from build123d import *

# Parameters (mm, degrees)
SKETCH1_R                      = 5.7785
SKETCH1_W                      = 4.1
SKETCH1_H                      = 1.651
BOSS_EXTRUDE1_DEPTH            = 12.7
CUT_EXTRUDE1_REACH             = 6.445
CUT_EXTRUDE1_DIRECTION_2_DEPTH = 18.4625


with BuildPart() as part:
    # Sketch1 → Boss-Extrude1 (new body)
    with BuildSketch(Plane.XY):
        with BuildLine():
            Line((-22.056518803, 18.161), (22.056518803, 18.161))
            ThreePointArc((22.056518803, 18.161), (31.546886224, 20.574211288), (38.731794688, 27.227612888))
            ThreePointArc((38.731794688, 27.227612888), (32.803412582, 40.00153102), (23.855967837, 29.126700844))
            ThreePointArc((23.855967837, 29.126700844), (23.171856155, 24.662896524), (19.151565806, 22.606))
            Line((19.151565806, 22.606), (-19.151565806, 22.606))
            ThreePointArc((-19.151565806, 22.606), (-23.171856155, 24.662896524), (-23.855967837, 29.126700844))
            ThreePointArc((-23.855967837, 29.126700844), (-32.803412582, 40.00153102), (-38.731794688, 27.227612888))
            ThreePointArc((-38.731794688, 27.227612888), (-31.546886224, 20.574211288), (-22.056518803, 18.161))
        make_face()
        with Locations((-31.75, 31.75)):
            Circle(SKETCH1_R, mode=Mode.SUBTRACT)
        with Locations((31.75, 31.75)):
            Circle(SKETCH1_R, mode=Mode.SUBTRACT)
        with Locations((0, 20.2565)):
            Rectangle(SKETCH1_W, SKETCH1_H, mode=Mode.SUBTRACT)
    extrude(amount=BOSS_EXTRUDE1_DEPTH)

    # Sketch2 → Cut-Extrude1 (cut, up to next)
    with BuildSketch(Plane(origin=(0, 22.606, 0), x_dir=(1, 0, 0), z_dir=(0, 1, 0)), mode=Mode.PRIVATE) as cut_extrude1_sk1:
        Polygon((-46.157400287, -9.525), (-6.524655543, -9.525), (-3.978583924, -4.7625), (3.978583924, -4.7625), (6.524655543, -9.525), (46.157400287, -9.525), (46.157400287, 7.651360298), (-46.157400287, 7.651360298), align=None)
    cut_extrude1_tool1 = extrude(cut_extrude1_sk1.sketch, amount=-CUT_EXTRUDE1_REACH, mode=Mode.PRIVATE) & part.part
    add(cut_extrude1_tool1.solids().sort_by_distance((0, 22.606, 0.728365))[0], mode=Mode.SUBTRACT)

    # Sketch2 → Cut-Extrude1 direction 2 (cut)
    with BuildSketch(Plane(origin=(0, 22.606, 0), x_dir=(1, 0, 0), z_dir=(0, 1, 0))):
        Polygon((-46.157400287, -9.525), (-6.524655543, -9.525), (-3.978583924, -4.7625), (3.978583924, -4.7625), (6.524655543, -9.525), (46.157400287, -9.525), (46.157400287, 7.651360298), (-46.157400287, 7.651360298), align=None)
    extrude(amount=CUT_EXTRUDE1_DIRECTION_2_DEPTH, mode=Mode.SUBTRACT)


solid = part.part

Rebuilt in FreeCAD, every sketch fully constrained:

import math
import FreeCAD as App
import Part
import Sketcher

V = App.Vector
Q = App.Units.Quantity

doc = App.newDocument("Part")
params = doc.addObject("Spreadsheet::Sheet", "Params")
for row, (alias, value) in enumerate([
    ("sketch1_diameter", "0.455 in"),
    ("sketch1_height", "0.065 in"),
    ("pad1_length", "0.5 in"),
    ("pocket1_length", "0.175 in"),
    ("pocket2_length", "18.4625 mm"),
], start=1):
    params.set(f"A{row}", alias)
    params.set(f"B{row}", "=" + value)
    params.setAlias(f"B{row}", alias)

body = doc.addObject("PartDesign::Body", "Body")

sketch1 = body.newObject("Sketcher::SketchObject", "Sketch")
sketch1.AttachmentSupport = (doc.getObject("XY_Plane"), [""])
sketch1.MapMode = "FlatFace"
sketch1.addGeometry([
    Part.LineSegment(V(-22.056519, 18.161, 0), V(22.056519, 18.161, 0)),
    Part.ArcOfCircle(Part.Circle(V(22.056519, 38.028855, 0), V(0, 0, 1), 19.867855), math.radians(-90), math.radians(-32.932741)),
    Part.ArcOfCircle(Part.Circle(V(31.75, 31.75, 0), V(0, 0, 1), 8.3185), math.radians(-32.932741), math.radians(198.382381)),
    Part.ArcOfCircle(Part.Circle(V(19.151566, 27.563361, 0), V(0, 0, 1), 4.957361), math.radians(-90), math.radians(18.382381)),
    Part.LineSegment(V(19.151566, 22.606, 0), V(-19.151566, 22.606, 0)),
    Part.ArcOfCircle(Part.Circle(V(-19.151566, 27.563361, 0), V(0, 0, 1), 4.957361), math.radians(161.617619), math.radians(270)),
    Part.ArcOfCircle(Part.Circle(V(-31.75, 31.75, 0), V(0, 0, 1), 8.3185), math.radians(-18.382381), math.radians(212.932741)),
    Part.ArcOfCircle(Part.Circle(V(-22.056519, 38.028855, 0), V(0, 0, 1), 19.867855), math.radians(-147.067259), math.radians(-90)),
    Part.LineSegment(V(2.05, 19.431, 0), V(-2.05, 19.431, 0)),
    Part.LineSegment(V(-2.05, 19.431, 0), V(-2.05, 21.082, 0)),
    Part.LineSegment(V(-2.05, 21.082, 0), V(2.05, 21.082, 0)),
    Part.LineSegment(V(2.05, 21.082, 0), V(2.05, 19.431, 0)),
    Part.Circle(V(-31.75, 31.75, 0), V(0, 0, 1), 5.7785),
    Part.Circle(V(31.75, 31.75, 0), V(0, 0, 1), 5.7785),
], False)
sketch1.addConstraint([
    Sketcher.Constraint("Tangent", 0, 2, 1, 1),
    Sketcher.Constraint("Tangent", 1, 2, 2, 1),
    Sketcher.Constraint("Tangent", 2, 2, 3, 2),
    Sketcher.Constraint("Tangent", 3, 1, 4, 1),
    Sketcher.Constraint("Tangent", 4, 2, 5, 2),
    Sketcher.Constraint("Tangent", 5, 1, 6, 1),
    Sketcher.Constraint("Tangent", 6, 2, 7, 1),
    Sketcher.Constraint("Tangent", 7, 2, 0, 1),
    Sketcher.Constraint("Coincident", 8, 2, 9, 1),
    Sketcher.Constraint("Coincident", 9, 2, 10, 1),
    Sketcher.Constraint("Coincident", 10, 2, 11, 1),
    Sketcher.Constraint("Coincident", 11, 2, 8, 1),
    Sketcher.Constraint("Horizontal", 0),
    Sketcher.Constraint("Horizontal", 4),
    Sketcher.Constraint("Horizontal", 8),
    Sketcher.Constraint("Vertical", 9),
    Sketcher.Constraint("Horizontal", 10),
    Sketcher.Constraint("Vertical", 11),
    Sketcher.Constraint("Coincident", 12, 3, 6, 3),
    Sketcher.Constraint("Coincident", 13, 3, 2, 3),
    Sketcher.Constraint("Equal", 3, 5),
    Sketcher.Constraint("Equal", 2, 6),
    Sketcher.Constraint("Equal", 1, 7),
    Sketcher.Constraint("Equal", 12, 13),
    Sketcher.Constraint("Symmetric", 2, 3, 6, 3, -2),
    Sketcher.Constraint("Diameter", 12, Q("0.455 in")),
    Sketcher.Constraint("Radius", 2, Q("0.3275 in")),
    Sketcher.Constraint("DistanceX", 6, 3, 2, 3, Q("2.5 in")),
    Sketcher.Constraint("DistanceY", 9, 1, 9, 2, Q("0.065 in")),
    Sketcher.Constraint("DistanceY", -1, 1, 2, 3, Q("1.25 in")),
    Sketcher.Constraint("DistanceY", -1, 1, 3, 1, Q("0.89 in")),
    Sketcher.Constraint("DistanceY", -1, 1, 9, 2, Q("0.83 in")),
    Sketcher.Constraint("DistanceY", 7, 2, 8, 2, Q("0.05 in")),
    Sketcher.Constraint("Radius", 3, 4.957361),
    Sketcher.Constraint("DistanceX", 8, 2, 8, 1, 4.1),
    Sketcher.Constraint("Radius", 1, 19.867855),
    Sketcher.Constraint("DistanceX", 8, 2, -1, 1, 2.05),
])
sketch1.setExpression("Constraints[25]", "Params.sketch1_diameter")
sketch1.setExpression("Constraints[28]", "Params.sketch1_height")
pad1 = body.newObject("PartDesign::Pad", "Pad")
pad1.Profile = sketch1
pad1.setExpression("Length", "Params.pad1_length")

sketch2 = body.newObject("Sketcher::SketchObject", "Sketch001")
sketch2.AttachmentSupport = (doc.getObject("XZ_Plane"), [""])
sketch2.MapMode = "FlatFace"
sketch2.AttachmentOffset = App.Placement(V(0, 0, -0.89 * 25.4), App.Rotation())
sketch2.addGeometry([
    Part.LineSegment(V(-46.1574, 9.525, 0), V(-6.524656, 9.525, 0)),
    Part.LineSegment(V(-6.524656, 9.525, 0), V(-3.978584, 4.7625, 0)),
    Part.LineSegment(V(-3.978584, 4.7625, 0), V(3.978584, 4.7625, 0)),
    Part.LineSegment(V(3.978584, 4.7625, 0), V(6.524656, 9.525, 0)),
    Part.LineSegment(V(6.524656, 9.525, 0), V(46.1574, 9.525, 0)),
    Part.LineSegment(V(46.1574, 9.525, 0), V(46.1574, -7.65136, 0)),
    Part.LineSegment(V(46.1574, -7.65136, 0), V(-46.1574, -7.65136, 0)),
    Part.LineSegment(V(-46.1574, -7.65136, 0), V(-46.1574, 9.525, 0)),
], False)
sketch2.addConstraint([
    Sketcher.Constraint("Coincident", 0, 2, 1, 1),
    Sketcher.Constraint("Coincident", 1, 2, 2, 1),
    Sketcher.Constraint("Coincident", 2, 2, 3, 1),
    Sketcher.Constraint("Coincident", 3, 2, 4, 1),
    Sketcher.Constraint("Coincident", 4, 2, 5, 1),
    Sketcher.Constraint("Coincident", 5, 2, 6, 1),
    Sketcher.Constraint("Coincident", 6, 2, 7, 1),
    Sketcher.Constraint("Coincident", 7, 2, 0, 1),
    Sketcher.Constraint("Horizontal", 0),
    Sketcher.Constraint("Horizontal", 2),
    Sketcher.Constraint("Horizontal", 4),
    Sketcher.Constraint("Vertical", 5),
    Sketcher.Constraint("Horizontal", 6),
    Sketcher.Constraint("Vertical", 7),
    Sketcher.Constraint("Symmetric", 0, 2, 3, 2, -2),
    Sketcher.Constraint("Equal", 0, 4),
    Sketcher.Constraint("Equal", 1, 3),
    Sketcher.Constraint("DistanceY", -1, 1, 0, 2, Q("0.375 in")),
    Sketcher.Constraint("DistanceY", -1, 1, 1, 2, Q("0.1875 in")),
    Sketcher.Constraint("DistanceX", 6, 2, 6, 1, 92.314801),
    Sketcher.Constraint("DistanceY", 5, 2, 5, 1, 17.17636),
    Sketcher.Constraint("Distance", 1, 5.40036),
    Sketcher.Constraint("DistanceX", 0, 1, 0, 2, 39.632745),
])
pocket1 = body.newObject("PartDesign::Pocket", "Pocket")
pocket1.Profile = sketch2
pocket1.setExpression("Length", "Params.pocket1_length")
pocket1.Reversed = True

sketch3 = body.newObject("Sketcher::SketchObject", "Sketch002")
sketch3.AttachmentSupport = (doc.getObject("XZ_Plane"), [""])
sketch3.MapMode = "FlatFace"
sketch3.AttachmentOffset = App.Placement(V(0, 0, -0.89 * 25.4), App.Rotation())
sketch3.addGeometry([
    Part.LineSegment(V(-46.1574, 9.525, 0), V(-6.524656, 9.525, 0)),
    Part.LineSegment(V(-6.524656, 9.525, 0), V(-3.978584, 4.7625, 0)),
    Part.LineSegment(V(-3.978584, 4.7625, 0), V(3.978584, 4.7625, 0)),
    Part.LineSegment(V(3.978584, 4.7625, 0), V(6.524656, 9.525, 0)),
    Part.LineSegment(V(6.524656, 9.525, 0), V(46.1574, 9.525, 0)),
    Part.LineSegment(V(46.1574, 9.525, 0), V(46.1574, -7.65136, 0)),
    Part.LineSegment(V(46.1574, -7.65136, 0), V(-46.1574, -7.65136, 0)),
    Part.LineSegment(V(-46.1574, -7.65136, 0), V(-46.1574, 9.525, 0)),
], False)
sketch3.addConstraint([
    Sketcher.Constraint("Coincident", 0, 2, 1, 1),
    Sketcher.Constraint("Coincident", 1, 2, 2, 1),
    Sketcher.Constraint("Coincident", 2, 2, 3, 1),
    Sketcher.Constraint("Coincident", 3, 2, 4, 1),
    Sketcher.Constraint("Coincident", 4, 2, 5, 1),
    Sketcher.Constraint("Coincident", 5, 2, 6, 1),
    Sketcher.Constraint("Coincident", 6, 2, 7, 1),
    Sketcher.Constraint("Coincident", 7, 2, 0, 1),
    Sketcher.Constraint("Horizontal", 0),
    Sketcher.Constraint("Horizontal", 2),
    Sketcher.Constraint("Horizontal", 4),
    Sketcher.Constraint("Vertical", 5),
    Sketcher.Constraint("Horizontal", 6),
    Sketcher.Constraint("Vertical", 7),
    Sketcher.Constraint("Symmetric", 0, 2, 3, 2, -2),
    Sketcher.Constraint("Equal", 0, 4),
    Sketcher.Constraint("Equal", 1, 3),
    Sketcher.Constraint("DistanceY", -1, 1, 0, 2, Q("0.375 in")),
    Sketcher.Constraint("DistanceY", -1, 1, 1, 2, Q("0.1875 in")),
    Sketcher.Constraint("DistanceX", 6, 2, 6, 1, 92.314801),
    Sketcher.Constraint("DistanceY", 5, 2, 5, 1, 17.17636),
    Sketcher.Constraint("Distance", 1, 5.40036),
    Sketcher.Constraint("DistanceX", 0, 1, 0, 2, 39.632745),
])
pocket2 = body.newObject("PartDesign::Pocket", "Pocket001")
pocket2.Profile = sketch3
pocket2.setExpression("Length", "Params.pocket2_length")

doc.recompute()
